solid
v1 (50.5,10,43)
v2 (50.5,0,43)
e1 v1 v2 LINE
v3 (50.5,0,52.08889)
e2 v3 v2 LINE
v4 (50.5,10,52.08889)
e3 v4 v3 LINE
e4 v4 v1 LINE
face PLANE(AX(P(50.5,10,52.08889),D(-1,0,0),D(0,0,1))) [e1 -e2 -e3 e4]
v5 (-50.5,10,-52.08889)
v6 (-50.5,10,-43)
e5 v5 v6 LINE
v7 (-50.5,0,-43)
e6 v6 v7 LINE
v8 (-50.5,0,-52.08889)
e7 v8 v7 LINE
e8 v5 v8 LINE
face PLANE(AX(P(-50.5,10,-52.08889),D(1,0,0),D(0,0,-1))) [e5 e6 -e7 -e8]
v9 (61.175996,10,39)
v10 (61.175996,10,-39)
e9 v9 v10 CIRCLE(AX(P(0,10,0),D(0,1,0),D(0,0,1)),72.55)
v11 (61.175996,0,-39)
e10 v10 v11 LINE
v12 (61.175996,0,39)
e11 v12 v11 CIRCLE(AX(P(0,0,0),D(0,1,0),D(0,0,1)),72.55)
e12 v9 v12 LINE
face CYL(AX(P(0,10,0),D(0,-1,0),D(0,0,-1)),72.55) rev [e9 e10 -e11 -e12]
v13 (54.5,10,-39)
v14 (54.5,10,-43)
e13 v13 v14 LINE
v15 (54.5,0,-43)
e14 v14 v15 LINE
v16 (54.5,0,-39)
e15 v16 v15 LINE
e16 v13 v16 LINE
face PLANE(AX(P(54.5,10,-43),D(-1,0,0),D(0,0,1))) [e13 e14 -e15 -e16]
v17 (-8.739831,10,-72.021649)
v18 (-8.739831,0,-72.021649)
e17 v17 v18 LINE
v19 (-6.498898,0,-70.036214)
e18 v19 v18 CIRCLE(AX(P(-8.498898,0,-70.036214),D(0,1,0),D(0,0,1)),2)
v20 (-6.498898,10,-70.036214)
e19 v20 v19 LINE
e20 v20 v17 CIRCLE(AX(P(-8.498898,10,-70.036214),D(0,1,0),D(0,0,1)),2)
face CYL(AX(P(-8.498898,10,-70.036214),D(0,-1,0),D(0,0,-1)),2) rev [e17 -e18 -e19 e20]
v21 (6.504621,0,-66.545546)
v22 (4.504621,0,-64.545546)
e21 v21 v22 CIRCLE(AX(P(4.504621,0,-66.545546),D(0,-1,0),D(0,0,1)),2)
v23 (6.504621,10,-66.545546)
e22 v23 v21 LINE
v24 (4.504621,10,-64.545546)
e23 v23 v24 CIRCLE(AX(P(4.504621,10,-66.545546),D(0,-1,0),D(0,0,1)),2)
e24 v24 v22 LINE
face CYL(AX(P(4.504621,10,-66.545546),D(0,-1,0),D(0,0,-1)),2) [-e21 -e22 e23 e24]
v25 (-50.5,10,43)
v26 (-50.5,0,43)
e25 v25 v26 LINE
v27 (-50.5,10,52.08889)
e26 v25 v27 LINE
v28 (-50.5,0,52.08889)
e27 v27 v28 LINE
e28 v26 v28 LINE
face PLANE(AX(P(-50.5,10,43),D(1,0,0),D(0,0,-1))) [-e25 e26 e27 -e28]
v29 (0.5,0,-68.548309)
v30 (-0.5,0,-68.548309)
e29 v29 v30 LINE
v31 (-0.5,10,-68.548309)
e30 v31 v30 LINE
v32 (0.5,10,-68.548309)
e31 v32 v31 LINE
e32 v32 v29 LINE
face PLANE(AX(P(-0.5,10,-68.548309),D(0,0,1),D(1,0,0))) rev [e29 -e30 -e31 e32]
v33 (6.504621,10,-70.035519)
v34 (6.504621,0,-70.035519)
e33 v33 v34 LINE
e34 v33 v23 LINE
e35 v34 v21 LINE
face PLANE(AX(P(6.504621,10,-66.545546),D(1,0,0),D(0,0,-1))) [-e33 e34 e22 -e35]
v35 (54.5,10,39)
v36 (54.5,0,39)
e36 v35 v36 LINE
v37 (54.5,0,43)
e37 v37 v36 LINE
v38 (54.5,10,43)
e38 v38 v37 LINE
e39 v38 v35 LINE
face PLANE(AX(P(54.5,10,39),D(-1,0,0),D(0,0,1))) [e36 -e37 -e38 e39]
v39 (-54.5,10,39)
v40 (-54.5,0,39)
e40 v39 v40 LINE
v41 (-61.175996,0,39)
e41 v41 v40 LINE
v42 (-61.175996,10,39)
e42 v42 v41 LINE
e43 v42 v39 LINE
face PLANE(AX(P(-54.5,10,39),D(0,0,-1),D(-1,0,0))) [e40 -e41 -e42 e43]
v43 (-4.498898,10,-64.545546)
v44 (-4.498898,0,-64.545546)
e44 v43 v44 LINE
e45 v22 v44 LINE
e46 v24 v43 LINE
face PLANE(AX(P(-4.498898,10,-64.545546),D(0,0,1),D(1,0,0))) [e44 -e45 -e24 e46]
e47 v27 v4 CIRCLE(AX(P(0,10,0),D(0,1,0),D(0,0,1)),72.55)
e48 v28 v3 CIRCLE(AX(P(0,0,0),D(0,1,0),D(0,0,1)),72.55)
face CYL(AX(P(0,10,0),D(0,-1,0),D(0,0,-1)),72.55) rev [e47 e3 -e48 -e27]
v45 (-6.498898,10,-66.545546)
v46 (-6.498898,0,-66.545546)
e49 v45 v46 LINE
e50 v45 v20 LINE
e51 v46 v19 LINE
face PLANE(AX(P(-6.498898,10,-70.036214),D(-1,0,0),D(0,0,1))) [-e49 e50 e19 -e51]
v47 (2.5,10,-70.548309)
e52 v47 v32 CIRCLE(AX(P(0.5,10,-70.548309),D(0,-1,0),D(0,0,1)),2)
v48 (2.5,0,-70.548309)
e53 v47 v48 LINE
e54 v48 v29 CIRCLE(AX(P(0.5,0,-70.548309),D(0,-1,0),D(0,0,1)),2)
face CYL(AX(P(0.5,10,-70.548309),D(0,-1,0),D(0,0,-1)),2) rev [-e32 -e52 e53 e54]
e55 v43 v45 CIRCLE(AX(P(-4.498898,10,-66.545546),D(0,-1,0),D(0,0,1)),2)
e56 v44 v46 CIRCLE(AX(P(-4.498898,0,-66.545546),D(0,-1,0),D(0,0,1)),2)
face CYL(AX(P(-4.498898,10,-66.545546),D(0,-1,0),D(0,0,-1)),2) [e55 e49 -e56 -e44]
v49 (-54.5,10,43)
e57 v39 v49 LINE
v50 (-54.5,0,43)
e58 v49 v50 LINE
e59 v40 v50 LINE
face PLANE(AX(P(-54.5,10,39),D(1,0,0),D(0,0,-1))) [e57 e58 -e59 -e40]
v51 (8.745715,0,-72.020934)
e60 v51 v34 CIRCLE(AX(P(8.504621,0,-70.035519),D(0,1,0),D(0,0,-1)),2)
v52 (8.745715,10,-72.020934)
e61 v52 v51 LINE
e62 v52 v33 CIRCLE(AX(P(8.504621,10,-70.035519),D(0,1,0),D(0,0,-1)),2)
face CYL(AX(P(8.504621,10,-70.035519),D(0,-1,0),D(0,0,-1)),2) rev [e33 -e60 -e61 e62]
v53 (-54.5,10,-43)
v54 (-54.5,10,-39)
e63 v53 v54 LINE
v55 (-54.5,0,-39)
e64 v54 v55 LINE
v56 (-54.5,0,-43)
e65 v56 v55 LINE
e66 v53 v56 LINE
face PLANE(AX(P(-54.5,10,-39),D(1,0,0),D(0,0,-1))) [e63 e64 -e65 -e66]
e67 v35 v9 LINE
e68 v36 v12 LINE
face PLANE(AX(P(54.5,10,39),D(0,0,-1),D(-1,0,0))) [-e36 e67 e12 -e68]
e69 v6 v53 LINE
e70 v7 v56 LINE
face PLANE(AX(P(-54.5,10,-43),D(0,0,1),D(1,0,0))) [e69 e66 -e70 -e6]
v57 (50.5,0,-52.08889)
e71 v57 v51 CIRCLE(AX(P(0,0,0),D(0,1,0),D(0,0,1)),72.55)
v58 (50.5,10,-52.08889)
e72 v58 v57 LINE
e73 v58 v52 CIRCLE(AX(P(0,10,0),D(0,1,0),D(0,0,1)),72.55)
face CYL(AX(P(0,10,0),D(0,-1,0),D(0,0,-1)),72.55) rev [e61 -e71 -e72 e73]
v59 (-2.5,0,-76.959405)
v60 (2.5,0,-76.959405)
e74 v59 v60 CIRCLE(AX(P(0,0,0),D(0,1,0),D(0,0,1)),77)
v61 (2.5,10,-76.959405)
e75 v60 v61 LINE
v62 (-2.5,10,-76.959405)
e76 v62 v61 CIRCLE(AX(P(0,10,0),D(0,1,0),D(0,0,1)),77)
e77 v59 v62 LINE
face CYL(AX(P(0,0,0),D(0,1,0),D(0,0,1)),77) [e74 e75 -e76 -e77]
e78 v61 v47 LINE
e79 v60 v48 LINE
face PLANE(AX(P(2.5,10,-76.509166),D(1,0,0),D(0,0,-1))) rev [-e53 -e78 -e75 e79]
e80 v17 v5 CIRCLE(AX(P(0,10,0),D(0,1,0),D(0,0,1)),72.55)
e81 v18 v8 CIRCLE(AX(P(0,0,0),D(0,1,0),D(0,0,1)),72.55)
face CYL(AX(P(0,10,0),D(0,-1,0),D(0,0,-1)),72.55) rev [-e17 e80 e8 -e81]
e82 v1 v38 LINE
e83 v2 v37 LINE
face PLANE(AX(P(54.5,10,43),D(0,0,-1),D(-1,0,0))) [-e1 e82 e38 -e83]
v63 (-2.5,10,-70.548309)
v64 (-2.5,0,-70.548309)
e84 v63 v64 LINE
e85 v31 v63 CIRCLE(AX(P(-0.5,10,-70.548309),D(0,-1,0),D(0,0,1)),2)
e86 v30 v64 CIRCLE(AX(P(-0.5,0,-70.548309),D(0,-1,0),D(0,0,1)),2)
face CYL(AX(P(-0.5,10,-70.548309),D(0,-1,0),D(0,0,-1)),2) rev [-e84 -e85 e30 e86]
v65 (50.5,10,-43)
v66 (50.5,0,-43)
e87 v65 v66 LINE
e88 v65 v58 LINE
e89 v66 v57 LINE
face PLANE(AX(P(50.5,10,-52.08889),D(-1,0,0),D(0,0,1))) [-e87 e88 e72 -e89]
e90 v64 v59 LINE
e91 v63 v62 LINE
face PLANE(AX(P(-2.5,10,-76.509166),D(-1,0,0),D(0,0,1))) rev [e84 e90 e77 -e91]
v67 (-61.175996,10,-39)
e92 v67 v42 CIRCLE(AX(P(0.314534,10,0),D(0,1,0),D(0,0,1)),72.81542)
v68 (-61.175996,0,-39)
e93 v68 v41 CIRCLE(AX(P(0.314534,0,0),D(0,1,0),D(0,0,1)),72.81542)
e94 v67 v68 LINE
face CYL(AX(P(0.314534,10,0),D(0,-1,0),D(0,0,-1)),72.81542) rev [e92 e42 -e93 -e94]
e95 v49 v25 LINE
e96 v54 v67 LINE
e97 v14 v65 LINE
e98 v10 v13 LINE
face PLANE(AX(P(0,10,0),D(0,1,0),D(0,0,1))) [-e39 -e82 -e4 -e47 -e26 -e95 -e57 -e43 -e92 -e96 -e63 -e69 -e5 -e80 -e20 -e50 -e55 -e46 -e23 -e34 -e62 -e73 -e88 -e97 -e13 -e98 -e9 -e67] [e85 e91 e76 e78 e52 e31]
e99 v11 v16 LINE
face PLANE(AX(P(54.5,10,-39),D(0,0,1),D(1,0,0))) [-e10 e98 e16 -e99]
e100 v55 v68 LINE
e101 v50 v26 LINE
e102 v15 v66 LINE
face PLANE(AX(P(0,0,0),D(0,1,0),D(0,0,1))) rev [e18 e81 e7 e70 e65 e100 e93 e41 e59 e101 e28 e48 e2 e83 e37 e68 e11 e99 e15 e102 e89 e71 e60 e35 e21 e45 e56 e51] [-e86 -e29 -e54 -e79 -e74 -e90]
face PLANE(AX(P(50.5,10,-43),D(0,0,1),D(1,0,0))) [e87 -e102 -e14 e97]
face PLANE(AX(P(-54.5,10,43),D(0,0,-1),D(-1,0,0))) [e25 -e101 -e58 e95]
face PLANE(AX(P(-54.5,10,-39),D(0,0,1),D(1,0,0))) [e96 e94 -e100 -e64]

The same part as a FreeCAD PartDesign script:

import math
import FreeCAD as App
import Part
import Sketcher

V = App.Vector
Q = App.Units.Quantity

doc = App.newDocument("Part")
body = doc.addObject("PartDesign::Body", "Body")

# Sketch on XZ plane
sketch1 = body.newObject("Sketcher::SketchObject", "Sketch")
sketch1.AttachmentSupport = (doc.getObject("XZ_Plane"), [""])
sketch1.MapMode = "FlatFace"
sketch1.addGeometry([
    Part.LineSegment(V(0.5, -68.5, 0), V(-0.5, -68.5, 0)),  # 0
    Part.ArcOfCircle(Part.Circle(V(-0.5, -70.5, 0), V(0, 0, 1), 2), math.radians(90), math.radians(180)),  # 1
    Part.LineSegment(V(-2.5, -70.5, 0), V(-2.5, -76.5, 0)),  # 2
    Part.ArcOfCircle(Part.Circle(V(0, 0, 0), V(0, 0, 1), 76.5), math.radians(-88), math.radians(268)),  # 3
    Part.LineSegment(V(2.5, -76.5, 0), V(2.5, -70.5, 0)),  # 4
    Part.ArcOfCircle(Part.Circle(V(0.5, -70.5, 0), V(0, 0, 1), 2), math.radians(0), math.radians(90)),  # 5
    Part.LineSegment(V(-4.5, -64.5, 0), V(4.5, -64.5, 0)),  # 6
    Part.ArcOfCircle(Part.Circle(V(4.5, -66.5, 0), V(0, 0, 1), 2), math.radians(0), math.radians(90)),  # 7
    Part.LineSegment(V(6.5, -66.5, 0), V(6.5, -70, 0)),  # 8
    Part.ArcOfCircle(Part.Circle(V(8.5, -70, 0), V(0, 0, 1), 2), math.radians(180), math.radians(277)),  # 9
    Part.ArcOfCircle(Part.Circle(V(0, 0, 0), V(0, 0, 1), 72.6), math.radians(-83), math.radians(-46)),  # 10
    Part.LineSegment(V(50.5, -52.1, 0), V(50.5, -43, 0)),  # 11
    Part.LineSegment(V(50.5, -43, 0), V(54.5, -43, 0)),  # 12
    Part.LineSegment(V(54.5, -43, 0), V(54.5, -39, 0)),  # 13
    Part.LineSegment(V(54.5, -39, 0), V(61.2, -39, 0)),  # 14
    Part.ArcOfCircle(Part.Circle(V(0, 0, 0), V(0, 0, 1), 72.6), math.radians(-33), math.radians(33)),  # 15
    Part.LineSegment(V(61.2, 39, 0), V(54.5, 39, 0)),  # 16
    Part.LineSegment(V(54.5, 39, 0), V(54.5, 43, 0)),  # 17
    Part.LineSegment(V(54.5, 43, 0), V(50.5, 43, 0)),  # 18
    Part.LineSegment(V(50.5, 43, 0), V(50.5, 52.1, 0)),  # 19
    Part.ArcOfCircle(Part.Circle(V(0, 0, 0), V(0, 0, 1), 72.5), math.radians(46), math.radians(134)),  # 20
    Part.LineSegment(V(-50.5, 52.1, 0), V(-50.5, 43, 0)),  # 21
    Part.LineSegment(V(-50.5, 43, 0), V(-54.5, 43, 0)),  # 22
    Part.LineSegment(V(-54.5, 43, 0), V(-54.5, 39, 0)),  # 23
    Part.LineSegment(V(-54.5, 39, 0), V(-61.2, 39, 0)),  # 24
    Part.ArcOfCircle(Part.Circle(V(0.3, 0, 0), V(0, 0, 1), 72.8), math.radians(148), math.radians(212)),  # 25
    Part.LineSegment(V(-61.2, -39, 0), V(-54.5, -39, 0)),  # 26
    Part.LineSegment(V(-54.5, -39, 0), V(-54.5, -43, 0)),  # 27
    Part.LineSegment(V(-54.5, -43, 0), V(-50.5, -43, 0)),  # 28
    Part.LineSegment(V(-50.5, -43, 0), V(-50.5, -52.1, 0)),  # 29
    Part.ArcOfCircle(Part.Circle(V(0, 0, 0), V(0, 0, 1), 72.6), math.radians(-134), math.radians(-97)),  # 30
    Part.ArcOfCircle(Part.Circle(V(-8.5, -70, 0), V(0, 0, 1), 2), math.radians(-97), math.radians(0)),  # 31
    Part.LineSegment(V(-6.5, -70, 0), V(-6.5, -66.5, 0)),  # 32
    Part.ArcOfCircle(Part.Circle(V(-4.5, -66.5, 0), V(0, 0, 1), 2), math.radians(90), math.radians(180)),  # 33
], False)
sketch1.addConstraint([
    Sketcher.Constraint("Tangent", 0, 2, 1, 1),
    Sketcher.Constraint("Tangent", 1, 2, 2, 1),
    Sketcher.Constraint("Coincident", 2, 2, 3, 2),
    Sketcher.Constraint("Coincident", 3, 1, 4, 1),
    Sketcher.Constraint("Tangent", 4, 2, 5, 1),
    Sketcher.Constraint("Tangent", 5, 2, 0, 1),
    Sketcher.Constraint("Tangent", 6, 2, 7, 2),
    Sketcher.Constraint("Tangent", 7, 1, 8, 1),
    Sketcher.Constraint("Tangent", 8, 2, 9, 1),
    Sketcher.Constraint("Tangent", 9, 2, 10, 1),
    Sketcher.Constraint("Coincident", 10, 2, 11, 1),
    Sketcher.Constraint("Coincident", 11, 2, 12, 1),
    Sketcher.Constraint("Coincident", 12, 2, 13, 1),
    Sketcher.Constraint("Coincident", 13, 2, 14, 1),
    Sketcher.Constraint("Coincident", 14, 2, 15, 1),
    Sketcher.Constraint("Coincident", 15, 2, 16, 1),
    Sketcher.Constraint("Coincident", 16, 2, 17, 1),
    Sketcher.Constraint("Coincident", 17, 2, 18, 1),
    Sketcher.Constraint("Coincident", 18, 2, 19, 1),
    Sketcher.Constraint("Coincident", 19, 2, 20, 1),
    Sketcher.Constraint("Coincident", 20, 2, 21, 1),
    Sketcher.Constraint("Coincident", 21, 2, 22, 1),
    Sketcher.Constraint("Coincident", 22, 2, 23, 1),
    Sketcher.Constraint("Coincident", 23, 2, 24, 1),
    Sketcher.Constraint("Coincident", 24, 2, 25, 1),
    Sketcher.Constraint("Coincident", 25, 2, 26, 1),
    Sketcher.Constraint("Coincident", 26, 2, 27, 1),
    Sketcher.Constraint("Coincident", 27, 2, 28, 1),
    Sketcher.Constraint("Coincident", 28, 2, 29, 1),
    Sketcher.Constraint("Coincident", 29, 2, 30, 1),
    Sketcher.Constraint("Tangent", 30, 2, 31, 1),
    Sketcher.Constraint("Tangent", 31, 2, 32, 1),
    Sketcher.Constraint("Tangent", 32, 2, 33, 2),
    Sketcher.Constraint("Tangent", 33, 1, 6, 1),
    Sketcher.Constraint("Horizontal", 0),
    Sketcher.Constraint("Vertical", 2),
    Sketcher.Constraint("Vertical", 4),
    Sketcher.Constraint("Horizontal", 6),
    Sketcher.Constraint("Vertical", 8),
    Sketcher.Constraint("Vertical", 11),
    Sketcher.Constraint("Horizontal", 12),
    Sketcher.Constraint("Vertical", 13),
    Sketcher.Constraint("Horizontal", 14),
    Sketcher.Constraint("Horizontal", 16),
    Sketcher.Constraint("Vertical", 17),
    Sketcher.Constraint("Horizontal", 18),
    Sketcher.Constraint("Vertical", 19),
    Sketcher.Constraint("Vertical", 21),
    Sketcher.Constraint("Horizontal", 22),
    Sketcher.Constraint("Vertical", 23),
    Sketcher.Constraint("Horizontal", 24),
    Sketcher.Constraint("Horizontal", 26),
    Sketcher.Constraint("Vertical", 27),
    Sketcher.Constraint("Horizontal", 28),
    Sketcher.Constraint("Vertical", 29),
    Sketcher.Constraint("Vertical", 32),
    Sketcher.Constraint("Coincident", 3, 3, -1, 1),
    Sketcher.Constraint("Coincident", 10, 3, -1, 1),
    Sketcher.Constraint("Coincident", 15, 3, -1, 1),
    Sketcher.Constraint("Coincident", 20, 3, -1, 1),
    Sketcher.Constraint("Coincident", 30, 3, -1, 1),
    Sketcher.Constraint("Equal", 1, 5),
    Sketcher.Constraint("Equal", 5, 7),
    Sketcher.Constraint("Equal", 7, 9),
    Sketcher.Constraint("Equal", 10, 15),
    Sketcher.Constraint("Equal", 15, 20),
    Sketcher.Constraint("Equal", 20, 30),
    Sketcher.Constraint("Equal", 9, 31),
    Sketcher.Constraint("Equal", 31, 33),
    Sketcher.Constraint("Symmetric", 11, 2, 21, 2, -1, 1),
    Sketcher.Constraint("Symmetric", 13, 2, 23, 2, -1, 1),
    Sketcher.Constraint("Symmetric", 15, 2, 25, 2, -1, 1),
    Sketcher.Constraint("Symmetric", 17, 2, 27, 2, -1, 1),
    Sketcher.Constraint("Symmetric", 18, 2, 21, 2, -2),
    Sketcher.Constraint("Symmetric", 16, 2, 23, 2, -2),
    Sketcher.Constraint("PointOnObject", 25, 3, -1),
    Sketcher.Constraint("Horizontal", 2, 2, 3, 1),
    Sketcher.Constraint("Horizontal", 10, 2, 29, 2),
    Sketcher.Constraint("Equal", 28, 13),
    Sketcher.Constraint("Radius", 1, Q("2 mm")),
    Sketcher.Constraint("DistanceX", 0, 2, 0, 1, Q("1 mm")),
    Sketcher.Constraint("DistanceX", 12, 1, 12, 2, Q("4 mm")),
    Sketcher.Constraint("Radius", 3, Q("76.55 mm")),
    Sketcher.Constraint("Radius", 10, Q("72.55 mm")),
    Sketcher.Constraint("DistanceY", 11, 2, -1, 1, Q("43 mm")),
    Sketcher.Constraint("DistanceX", 26, 2, 1, 2, Q("52 mm")),
    Sketcher.Constraint("Radius", 25, Q("72.81542 mm")),
    Sketcher.Constraint("DistanceX", 6, 1, 6, 2, Q("9.003519 mm")),
    Sketcher.Constraint("DistanceY", 32, 1, 32, 2, Q("3.490668 mm")),
    Sketcher.Constraint("DistanceX", 31, 3, -1, 1, Q("8.498898 mm")),
    Sketcher.Constraint("DistanceY", 2, 2, 2, 1, Q("5.960857 mm")),
])
pad1 = body.newObject("PartDesign::Pad", "Pad")
pad1.Profile = sketch1
pad1.Length = 10
pad1.Reversed = True

# Sketch on XZ plane
sketch2 = body.newObject("Sketcher::SketchObject", "Sketch001")
sketch2.AttachmentSupport = (doc.getObject("XZ_Plane"), [""])
sketch2.MapMode = "FlatFace"
sketch2.addGeometry([
    Part.ArcOfCircle(Part.Circle(V(0, 0, 0), V(0, 0, 1), 76.55), math.radians(-88), math.radians(268)),
    Part.LineSegment(V(-2.5, -76.51, 0), V(-2.5, -76.96, 0)),
    Part.ArcOfCircle(Part.Circle(V(0, 0, 0), V(0, 0, 1), 77), math.radians(-88), math.radians(268)),
    Part.LineSegment(V(2.5, -76.96, 0), V(2.5, -76.51, 0)),
], False)
sketch2.addConstraint([
    Sketcher.Constraint("Coincident", 0, 2, 1, 1),
    Sketcher.Constraint("Coincident", 1, 2, 2, 2),
    Sketcher.Constraint("Coincident", 2, 1, 3, 1),
    Sketcher.Constraint("Coincident", 3, 2, 0, 1),
    Sketcher.Constraint("Vertical", 1),
    Sketcher.Constraint("Vertical", 3),
    Sketcher.Constraint("Coincident", 0, 3, -1, 1),
    Sketcher.Constraint("Coincident", 2, 3, -1, 1),
    Sketcher.Constraint("Horizontal", 1, 2, 2, 1),
    Sketcher.Constraint("Radius", 2, Q("77 mm")),
    Sketcher.Constraint("Radius", 0, Q("76.55 mm")),
    Sketcher.Constraint("DistanceX", 1, 2, 2, 1, Q("5 mm")),
])
pad2 = body.newObject("PartDesign::Pad", "Pad001")
pad2.Profile = sketch2
pad2.Length = 10
pad2.Reversed = True

doc.recompute()
